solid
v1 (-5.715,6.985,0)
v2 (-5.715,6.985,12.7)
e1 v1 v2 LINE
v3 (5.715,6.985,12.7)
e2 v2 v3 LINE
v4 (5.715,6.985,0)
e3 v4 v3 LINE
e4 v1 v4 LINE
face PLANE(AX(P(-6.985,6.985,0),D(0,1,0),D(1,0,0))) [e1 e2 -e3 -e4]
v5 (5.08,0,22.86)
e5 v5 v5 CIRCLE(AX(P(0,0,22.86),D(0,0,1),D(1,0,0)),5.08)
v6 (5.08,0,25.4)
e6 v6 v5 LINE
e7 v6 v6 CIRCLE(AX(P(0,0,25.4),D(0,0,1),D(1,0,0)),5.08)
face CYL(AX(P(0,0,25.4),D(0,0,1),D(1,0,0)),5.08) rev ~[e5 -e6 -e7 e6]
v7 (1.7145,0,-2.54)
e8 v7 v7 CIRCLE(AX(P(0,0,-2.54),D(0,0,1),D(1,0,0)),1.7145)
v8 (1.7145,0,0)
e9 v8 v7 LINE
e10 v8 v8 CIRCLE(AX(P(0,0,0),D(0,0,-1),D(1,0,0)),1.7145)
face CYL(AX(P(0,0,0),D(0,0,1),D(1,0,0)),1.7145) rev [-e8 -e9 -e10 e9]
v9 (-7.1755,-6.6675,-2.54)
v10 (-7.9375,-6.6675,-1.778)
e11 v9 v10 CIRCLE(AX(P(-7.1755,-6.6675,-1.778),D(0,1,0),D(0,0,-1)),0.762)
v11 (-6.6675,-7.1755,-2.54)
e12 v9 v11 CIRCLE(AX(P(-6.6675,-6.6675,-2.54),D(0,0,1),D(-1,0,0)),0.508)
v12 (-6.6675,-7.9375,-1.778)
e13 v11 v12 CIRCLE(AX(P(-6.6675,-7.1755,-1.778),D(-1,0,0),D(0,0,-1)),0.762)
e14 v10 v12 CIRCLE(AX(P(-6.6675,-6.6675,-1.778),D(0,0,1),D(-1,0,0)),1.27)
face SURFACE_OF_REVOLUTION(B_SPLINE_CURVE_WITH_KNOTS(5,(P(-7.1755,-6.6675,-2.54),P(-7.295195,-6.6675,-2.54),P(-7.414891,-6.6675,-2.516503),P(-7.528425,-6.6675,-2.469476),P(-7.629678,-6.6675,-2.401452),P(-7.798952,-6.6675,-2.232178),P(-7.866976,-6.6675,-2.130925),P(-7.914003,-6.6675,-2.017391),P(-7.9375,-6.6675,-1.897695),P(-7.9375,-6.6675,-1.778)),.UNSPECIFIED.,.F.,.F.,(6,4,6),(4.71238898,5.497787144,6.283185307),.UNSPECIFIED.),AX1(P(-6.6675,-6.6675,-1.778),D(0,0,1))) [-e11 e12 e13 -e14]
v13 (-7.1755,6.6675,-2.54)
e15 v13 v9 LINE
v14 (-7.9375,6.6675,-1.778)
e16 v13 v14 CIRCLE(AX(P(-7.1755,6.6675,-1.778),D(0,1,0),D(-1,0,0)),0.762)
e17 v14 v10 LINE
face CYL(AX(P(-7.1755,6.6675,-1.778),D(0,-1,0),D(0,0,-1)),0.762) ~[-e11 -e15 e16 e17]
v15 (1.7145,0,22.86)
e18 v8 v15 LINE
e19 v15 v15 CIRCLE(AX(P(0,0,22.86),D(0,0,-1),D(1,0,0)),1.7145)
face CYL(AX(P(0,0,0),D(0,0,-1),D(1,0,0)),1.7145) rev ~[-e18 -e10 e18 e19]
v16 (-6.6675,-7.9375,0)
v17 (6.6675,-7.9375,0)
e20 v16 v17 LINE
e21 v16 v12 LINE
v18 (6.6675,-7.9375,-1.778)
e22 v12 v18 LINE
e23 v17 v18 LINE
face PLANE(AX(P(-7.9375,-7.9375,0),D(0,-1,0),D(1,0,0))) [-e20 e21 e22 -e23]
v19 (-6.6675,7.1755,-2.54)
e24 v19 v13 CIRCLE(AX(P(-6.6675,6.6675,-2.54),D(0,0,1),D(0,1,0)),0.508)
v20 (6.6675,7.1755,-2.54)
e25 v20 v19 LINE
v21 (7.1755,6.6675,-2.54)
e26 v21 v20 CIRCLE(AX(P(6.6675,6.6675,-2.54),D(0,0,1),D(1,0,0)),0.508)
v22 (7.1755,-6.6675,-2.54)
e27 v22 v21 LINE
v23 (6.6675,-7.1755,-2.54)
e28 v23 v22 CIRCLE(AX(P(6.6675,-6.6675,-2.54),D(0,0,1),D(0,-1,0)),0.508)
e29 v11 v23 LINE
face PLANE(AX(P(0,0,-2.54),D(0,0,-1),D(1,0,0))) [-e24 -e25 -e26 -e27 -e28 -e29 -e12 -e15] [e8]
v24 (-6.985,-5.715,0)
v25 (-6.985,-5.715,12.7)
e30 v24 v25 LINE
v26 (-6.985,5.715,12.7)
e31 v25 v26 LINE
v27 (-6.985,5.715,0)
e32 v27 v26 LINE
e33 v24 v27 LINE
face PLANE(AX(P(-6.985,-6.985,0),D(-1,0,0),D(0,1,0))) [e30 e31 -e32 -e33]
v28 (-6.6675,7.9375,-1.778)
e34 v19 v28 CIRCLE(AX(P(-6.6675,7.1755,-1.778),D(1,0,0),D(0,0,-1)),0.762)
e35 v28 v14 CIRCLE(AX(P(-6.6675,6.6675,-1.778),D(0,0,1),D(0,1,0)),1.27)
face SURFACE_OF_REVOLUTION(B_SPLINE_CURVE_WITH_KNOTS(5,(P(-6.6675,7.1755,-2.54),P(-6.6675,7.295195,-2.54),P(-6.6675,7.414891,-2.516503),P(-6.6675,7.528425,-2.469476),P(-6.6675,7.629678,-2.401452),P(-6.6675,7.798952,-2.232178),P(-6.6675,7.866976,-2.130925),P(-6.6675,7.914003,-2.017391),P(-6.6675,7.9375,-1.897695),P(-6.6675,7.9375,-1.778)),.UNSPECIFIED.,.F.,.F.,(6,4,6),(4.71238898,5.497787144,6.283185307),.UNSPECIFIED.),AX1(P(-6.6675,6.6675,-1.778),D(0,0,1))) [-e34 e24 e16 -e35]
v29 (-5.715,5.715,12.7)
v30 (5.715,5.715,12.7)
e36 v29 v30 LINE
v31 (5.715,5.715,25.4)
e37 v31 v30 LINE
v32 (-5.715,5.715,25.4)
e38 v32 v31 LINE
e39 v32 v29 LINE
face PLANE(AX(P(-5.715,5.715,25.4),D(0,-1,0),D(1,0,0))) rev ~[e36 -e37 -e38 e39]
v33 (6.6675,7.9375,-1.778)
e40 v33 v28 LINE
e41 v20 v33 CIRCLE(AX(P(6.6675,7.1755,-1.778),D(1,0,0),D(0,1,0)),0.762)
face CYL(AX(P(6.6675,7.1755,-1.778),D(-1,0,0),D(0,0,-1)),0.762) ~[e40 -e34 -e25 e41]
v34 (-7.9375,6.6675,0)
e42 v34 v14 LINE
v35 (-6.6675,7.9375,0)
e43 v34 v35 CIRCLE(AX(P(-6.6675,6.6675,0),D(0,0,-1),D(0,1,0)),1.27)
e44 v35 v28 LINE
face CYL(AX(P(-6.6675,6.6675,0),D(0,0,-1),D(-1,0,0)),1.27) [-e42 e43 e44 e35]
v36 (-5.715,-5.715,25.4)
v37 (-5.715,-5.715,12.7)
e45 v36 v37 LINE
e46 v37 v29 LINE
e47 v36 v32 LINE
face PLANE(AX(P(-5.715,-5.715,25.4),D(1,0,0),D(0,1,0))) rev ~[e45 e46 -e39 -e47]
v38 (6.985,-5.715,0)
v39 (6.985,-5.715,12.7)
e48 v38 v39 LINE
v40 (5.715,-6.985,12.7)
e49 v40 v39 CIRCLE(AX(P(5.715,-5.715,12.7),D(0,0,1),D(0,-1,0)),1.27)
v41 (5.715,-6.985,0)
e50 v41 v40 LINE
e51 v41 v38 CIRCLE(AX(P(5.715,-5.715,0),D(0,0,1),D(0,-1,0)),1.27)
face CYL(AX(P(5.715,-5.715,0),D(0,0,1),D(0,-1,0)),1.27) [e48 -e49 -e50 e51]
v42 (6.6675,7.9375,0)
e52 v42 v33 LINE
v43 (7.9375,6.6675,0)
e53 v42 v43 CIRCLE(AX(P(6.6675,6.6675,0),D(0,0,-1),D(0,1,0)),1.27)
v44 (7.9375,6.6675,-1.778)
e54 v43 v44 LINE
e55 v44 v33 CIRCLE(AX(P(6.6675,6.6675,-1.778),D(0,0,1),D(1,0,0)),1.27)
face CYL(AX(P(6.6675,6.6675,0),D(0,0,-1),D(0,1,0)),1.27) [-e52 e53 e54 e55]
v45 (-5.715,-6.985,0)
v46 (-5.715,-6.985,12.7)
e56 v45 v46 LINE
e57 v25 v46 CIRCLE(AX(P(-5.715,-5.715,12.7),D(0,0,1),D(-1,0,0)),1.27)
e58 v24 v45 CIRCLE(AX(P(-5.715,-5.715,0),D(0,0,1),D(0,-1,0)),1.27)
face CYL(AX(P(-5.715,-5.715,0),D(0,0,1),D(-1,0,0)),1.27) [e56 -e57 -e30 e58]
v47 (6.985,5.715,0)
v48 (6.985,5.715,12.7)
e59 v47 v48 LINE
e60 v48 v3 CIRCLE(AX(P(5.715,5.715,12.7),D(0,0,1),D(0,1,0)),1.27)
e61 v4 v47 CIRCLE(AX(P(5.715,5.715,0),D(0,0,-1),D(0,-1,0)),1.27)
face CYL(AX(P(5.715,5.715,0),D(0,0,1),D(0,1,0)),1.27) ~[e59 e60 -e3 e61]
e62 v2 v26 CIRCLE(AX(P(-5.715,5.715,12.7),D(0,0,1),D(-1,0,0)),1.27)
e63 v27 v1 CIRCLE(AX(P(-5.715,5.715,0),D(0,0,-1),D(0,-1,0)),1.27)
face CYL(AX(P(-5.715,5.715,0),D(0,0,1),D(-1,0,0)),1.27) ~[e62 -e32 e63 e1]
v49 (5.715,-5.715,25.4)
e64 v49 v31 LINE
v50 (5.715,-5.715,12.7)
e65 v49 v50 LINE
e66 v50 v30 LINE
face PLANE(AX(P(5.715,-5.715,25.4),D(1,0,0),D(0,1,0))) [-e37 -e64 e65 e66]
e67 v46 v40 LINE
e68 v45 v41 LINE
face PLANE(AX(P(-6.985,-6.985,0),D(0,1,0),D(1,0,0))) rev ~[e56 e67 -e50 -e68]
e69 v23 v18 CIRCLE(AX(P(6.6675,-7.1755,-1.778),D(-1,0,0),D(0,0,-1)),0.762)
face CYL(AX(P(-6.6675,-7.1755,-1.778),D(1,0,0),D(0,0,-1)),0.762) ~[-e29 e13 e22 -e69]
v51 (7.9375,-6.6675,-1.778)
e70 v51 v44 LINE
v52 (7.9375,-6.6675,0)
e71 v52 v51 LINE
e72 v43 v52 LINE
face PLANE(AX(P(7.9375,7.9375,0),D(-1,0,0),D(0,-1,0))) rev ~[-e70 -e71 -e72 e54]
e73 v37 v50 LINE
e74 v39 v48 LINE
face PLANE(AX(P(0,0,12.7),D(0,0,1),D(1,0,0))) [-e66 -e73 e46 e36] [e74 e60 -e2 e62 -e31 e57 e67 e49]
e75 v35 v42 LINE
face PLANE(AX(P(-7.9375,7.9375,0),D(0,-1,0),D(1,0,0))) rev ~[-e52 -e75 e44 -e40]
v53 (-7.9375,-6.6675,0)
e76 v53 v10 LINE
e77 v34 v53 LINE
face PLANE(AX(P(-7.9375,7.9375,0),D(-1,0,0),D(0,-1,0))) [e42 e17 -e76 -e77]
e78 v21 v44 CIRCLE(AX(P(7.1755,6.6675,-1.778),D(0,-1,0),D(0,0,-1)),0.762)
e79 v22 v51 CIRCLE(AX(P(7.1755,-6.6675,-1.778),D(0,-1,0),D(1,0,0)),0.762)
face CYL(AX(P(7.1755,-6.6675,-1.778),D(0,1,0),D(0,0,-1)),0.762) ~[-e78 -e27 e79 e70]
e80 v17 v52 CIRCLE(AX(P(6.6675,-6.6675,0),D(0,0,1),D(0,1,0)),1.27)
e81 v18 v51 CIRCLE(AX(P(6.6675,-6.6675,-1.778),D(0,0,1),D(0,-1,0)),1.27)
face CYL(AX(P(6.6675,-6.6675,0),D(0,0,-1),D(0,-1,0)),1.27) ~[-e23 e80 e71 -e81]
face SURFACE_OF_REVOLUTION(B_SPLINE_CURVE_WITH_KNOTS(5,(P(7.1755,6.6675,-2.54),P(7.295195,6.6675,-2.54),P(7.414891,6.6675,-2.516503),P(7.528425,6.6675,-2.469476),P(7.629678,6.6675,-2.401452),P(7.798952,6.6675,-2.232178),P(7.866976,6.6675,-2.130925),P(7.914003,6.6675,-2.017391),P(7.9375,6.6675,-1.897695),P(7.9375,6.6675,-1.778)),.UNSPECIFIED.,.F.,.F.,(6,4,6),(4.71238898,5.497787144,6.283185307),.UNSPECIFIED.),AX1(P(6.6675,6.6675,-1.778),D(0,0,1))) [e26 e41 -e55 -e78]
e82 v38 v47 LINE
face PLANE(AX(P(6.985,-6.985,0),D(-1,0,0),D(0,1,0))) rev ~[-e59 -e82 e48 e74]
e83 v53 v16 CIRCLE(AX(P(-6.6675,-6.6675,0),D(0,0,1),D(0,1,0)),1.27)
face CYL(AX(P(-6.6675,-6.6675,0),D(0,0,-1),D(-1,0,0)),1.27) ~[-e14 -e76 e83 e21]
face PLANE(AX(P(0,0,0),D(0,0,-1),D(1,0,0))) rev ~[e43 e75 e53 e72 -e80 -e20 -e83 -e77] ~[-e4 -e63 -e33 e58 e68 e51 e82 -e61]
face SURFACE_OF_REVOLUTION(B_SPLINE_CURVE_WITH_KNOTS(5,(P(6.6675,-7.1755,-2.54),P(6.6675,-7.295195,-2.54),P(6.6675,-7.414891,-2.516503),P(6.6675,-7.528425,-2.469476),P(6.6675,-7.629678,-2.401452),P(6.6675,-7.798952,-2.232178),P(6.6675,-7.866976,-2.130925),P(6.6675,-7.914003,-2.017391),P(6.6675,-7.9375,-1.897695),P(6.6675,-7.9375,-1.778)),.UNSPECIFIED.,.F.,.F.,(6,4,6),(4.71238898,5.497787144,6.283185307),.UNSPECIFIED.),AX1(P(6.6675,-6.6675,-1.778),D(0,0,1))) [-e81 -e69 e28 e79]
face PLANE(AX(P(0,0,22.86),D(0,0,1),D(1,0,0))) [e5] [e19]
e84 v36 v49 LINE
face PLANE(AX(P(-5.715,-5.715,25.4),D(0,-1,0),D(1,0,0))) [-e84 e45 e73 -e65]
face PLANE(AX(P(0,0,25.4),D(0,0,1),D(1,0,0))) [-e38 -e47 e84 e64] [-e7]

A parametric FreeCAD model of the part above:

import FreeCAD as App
import Part
import Sketcher
from FreeCAD import Vector
Q = App.Units.Quantity


def edges_at(feature, points):
    """Names of the edges that pass closest to the given points."""
    edges = feature.Shape.Edges
    near = lambda p: min(range(len(edges)), key=lambda i: edges[i].distToShape(Part.Vertex(*p))[0])
    return sorted({f"Edge{near(p) + 1}" for p in points})

doc = App.newDocument("Part")
body = doc.addObject("PartDesign::Body", "Body")

sketch1 = body.newObject("Sketcher::SketchObject", "Sketch")
sketch1.AttachmentSupport = (doc.getObject("XY_Plane"), [""])
sketch1.MapMode = "FlatFace"
sketch1.addGeometry([
    Part.LineSegment(Vector(-6.985, 6.985, 0), Vector(-6.985, -6.985, 0)),
    Part.LineSegment(Vector(-6.985, -6.985, 0), Vector(6.985, -6.985, 0)),
    Part.LineSegment(Vector(6.985, -6.985, 0), Vector(6.985, 6.985, 0)),
    Part.LineSegment(Vector(6.985, 6.985, 0), Vector(-6.985, 6.985, 0)),
], False)
sketch1.addConstraint([
    Sketcher.Constraint("Coincident", 0, 2, 1, 1),
    Sketcher.Constraint("Coincident", 1, 2, 2, 1),
    Sketcher.Constraint("Coincident", 2, 2, 3, 1),
    Sketcher.Constraint("Coincident", 3, 2, 0, 1),
    Sketcher.Constraint("Vertical", 0),
    Sketcher.Constraint("Horizontal", 1),
    Sketcher.Constraint("Vertical", 2),
    Sketcher.Constraint("Horizontal", 3),
    Sketcher.Constraint("Symmetric", 0, 2, 2, 2, -1, 1),
    Sketcher.Constraint("Equal", 3, 0),
    Sketcher.Constraint("DistanceX", 1, 1, 1, 2, Q("0.55 in")),
])
pad1 = body.newObject("PartDesign::Pad", "Pad")
pad1.Profile = sketch1
pad1.Length = Q("1 in")

sketch2 = body.newObject("Sketcher::SketchObject", "Sketch001")
sketch2.AttachmentSupport = (doc.getObject("XY_Plane"), [""])
sketch2.MapMode = "FlatFace"
sketch2.AttachmentOffset = App.Placement(Vector(0, 0, 1 * 25.4), App.Rotation())
sketch2.addGeometry(Part.Circle(Vector(0, 0, 0), Vector(0, 0, 1), 5.08), False)
sketch2.addConstraint([
    Sketcher.Constraint("Coincident", 0, 3, -1, 1),
    Sketcher.Constraint("Diameter", 0, Q("0.4 in")),
])
pocket1 = body.newObject("PartDesign::Pocket", "Pocket")
pocket1.Profile = sketch2
pocket1.Length = Q("0.1 in")
doc.recompute()

fillet = body.newObject("PartDesign::Fillet", "Fillet")
fillet.Base = (pocket1, edges_at(pocket1, [
    (-6.985, 6.985, 12.7),
    (-6.985, -6.985, 12.7),
    (6.985, 6.985, 12.7),
    (6.985, -6.985, 12.7),
]))
fillet.Radius = Q("0.05 in")

sketch3 = body.newObject("Sketcher::SketchObject", "Sketch002")
sketch3.AttachmentSupport = (doc.getObject("XY_Plane"), [""])
sketch3.MapMode = "FlatFace"
sketch3.addGeometry([
    Part.LineSegment(Vector(-7.9375, -7.9375, 0), Vector(-7.9375, 7.9375, 0)),
    Part.LineSegment(Vector(-7.9375, 7.9375, 0), Vector(7.9375, 7.9375, 0)),
    Part.LineSegment(Vector(7.9375, 7.9375, 0), Vector(7.9375, -7.9375, 0)),
    Part.LineSegment(Vector(7.9375, -7.9375, 0), Vector(-7.9375, -7.9375, 0)),
], False)
sketch3.addConstraint([
    Sketcher.Constraint("Coincident", 0, 2, 1, 1),
    Sketcher.Constraint("Coincident", 1, 2, 2, 1),
    Sketcher.Constraint("Coincident", 2, 2, 3, 1),
    Sketcher.Constraint("Coincident", 3, 2, 0, 1),
    Sketcher.Constraint("Vertical", 0),
    Sketcher.Constraint("Horizontal", 1),
    Sketcher.Constraint("Vertical", 2),
    Sketcher.Constraint("Horizontal", 3),
    Sketcher.Constraint("Symmetric", 0, 2, 2, 2, -1, 1),
    Sketcher.Constraint("Equal", 3, 0),
    Sketcher.Constraint("DistanceX", 1, 1, 1, 2, Q("0.625 in")),
])
pad2 = body.newObject("PartDesign::Pad", "Pad001")
pad2.Profile = sketch3
pad2.Length = Q("0.1 in")
pad2.Reversed = True
doc.recompute()

fillet2 = body.newObject("PartDesign::Fillet", "Fillet001")
fillet2.Base = (pad2, edges_at(pad2, [
    (7.938, -7.938, -1.27),
    (-7.938, -7.938, -1.27),
    (-7.938, 7.938, -1.27),
    (7.938, 7.938, -1.27),
]))
fillet2.Radius = Q("0.05 in")
doc.recompute()

fillet3 = body.newObject("PartDesign::Fillet", "Fillet002")
fillet3.Base = (fillet2, edges_at(fillet2, [(0, -7.938, -2.54)]))
fillet3.Radius = Q("0.03 in")

sketch4 = body.newObject("Sketcher::SketchObject", "Sketch003")
sketch4.AttachmentSupport = (doc.getObject("XY_Plane"), [""])
sketch4.MapMode = "FlatFace"
sketch4.addGeometry(Part.Circle(Vector(0, 0, 0), Vector(0, 0, 1), 1.7145), False)
sketch4.addConstraint([
    Sketcher.Constraint("Coincident", 0, 3, -1, 1),
    Sketcher.Constraint("Diameter", 0, Q("0.135 in")),
])
pocket2 = body.newObject("PartDesign::Pocket", "Pocket001")
pocket2.Profile = sketch4
pocket2.Type = "ThroughAll"
pocket2.Midplane = True

sketch5 = body.newObject("Sketcher::SketchObject", "Sketch004")
sketch5.AttachmentSupport = (doc.getObject("XY_Plane"), [""])
sketch5.MapMode = "FlatFace"
sketch5.AttachmentOffset = App.Placement(Vector(0, 0, 1 * 25.4), App.Rotation())
sketch5.addGeometry([
    Part.LineSegment(Vector(-8.89, 8.89, 0), Vector(-8.89, -8.89, 0)),
    Part.LineSegment(Vector(-8.89, -8.89, 0), Vector(8.89, -8.89, 0)),
    Part.LineSegment(Vector(8.89, -8.89, 0), Vector(8.89, 8.89, 0)),
    Part.LineSegment(Vector(8.89, 8.89, 0), Vector(-8.89, 8.89, 0)),
    Part.LineSegment(Vector(5.715, -5.715, 0), Vector(-5.715, -5.715, 0)),
    Part.LineSegment(Vector(-5.715, -5.715, 0), Vector(-5.715, 5.715, 0)),
    Part.LineSegment(Vector(-5.715, 5.715, 0), Vector(5.715, 5.715, 0)),
    Part.LineSegment(Vector(5.715, 5.715, 0), Vector(5.715, -5.715, 0)),
], False)
sketch5.addConstraint([
    Sketcher.Constraint("Coincident", 0, 2, 1, 1),
    Sketcher.Constraint("Coincident", 1, 2, 2, 1),
    Sketcher.Constraint("Coincident", 2, 2, 3, 1),
    Sketcher.Constraint("Coincident", 3, 2, 0, 1),
    Sketcher.Constraint("Coincident", 4, 2, 5, 1),
    Sketcher.Constraint("Coincident", 5, 2, 6, 1),
    Sketcher.Constraint("Coincident", 6, 2, 7, 1),
    Sketcher.Constraint("Coincident", 7, 2, 4, 1),
    Sketcher.Constraint("Vertical", 0),
    Sketcher.Constraint("Horizontal", 1),
    Sketcher.Constraint("Vertical", 2),
    Sketcher.Constraint("Horizontal", 3),
    Sketcher.Constraint("Horizontal", 4),
    Sketcher.Constraint("Vertical", 5),
    Sketcher.Constraint("Horizontal", 6),
    Sketcher.Constraint("Vertical", 7),
    Sketcher.Constraint("Symmetric", 0, 2, 2, 2, -1, 1),
    Sketcher.Constraint("Symmetric", 4, 2, 6, 2, -1, 1),
    Sketcher.Constraint("Equal", 3, 0),
    Sketcher.Constraint("Equal", 6, 5),
    Sketcher.Constraint("DistanceX", 1, 1, 1, 2, Q("0.7 in")),
    Sketcher.Constraint("DistanceX", 4, 2, 4, 1, Q("0.45 in")),
])
pocket3 = body.newObject("PartDesign::Pocket", "Pocket002")
pocket3.Profile = sketch5
pocket3.Length = Q("0.5 in")

doc.recompute()
